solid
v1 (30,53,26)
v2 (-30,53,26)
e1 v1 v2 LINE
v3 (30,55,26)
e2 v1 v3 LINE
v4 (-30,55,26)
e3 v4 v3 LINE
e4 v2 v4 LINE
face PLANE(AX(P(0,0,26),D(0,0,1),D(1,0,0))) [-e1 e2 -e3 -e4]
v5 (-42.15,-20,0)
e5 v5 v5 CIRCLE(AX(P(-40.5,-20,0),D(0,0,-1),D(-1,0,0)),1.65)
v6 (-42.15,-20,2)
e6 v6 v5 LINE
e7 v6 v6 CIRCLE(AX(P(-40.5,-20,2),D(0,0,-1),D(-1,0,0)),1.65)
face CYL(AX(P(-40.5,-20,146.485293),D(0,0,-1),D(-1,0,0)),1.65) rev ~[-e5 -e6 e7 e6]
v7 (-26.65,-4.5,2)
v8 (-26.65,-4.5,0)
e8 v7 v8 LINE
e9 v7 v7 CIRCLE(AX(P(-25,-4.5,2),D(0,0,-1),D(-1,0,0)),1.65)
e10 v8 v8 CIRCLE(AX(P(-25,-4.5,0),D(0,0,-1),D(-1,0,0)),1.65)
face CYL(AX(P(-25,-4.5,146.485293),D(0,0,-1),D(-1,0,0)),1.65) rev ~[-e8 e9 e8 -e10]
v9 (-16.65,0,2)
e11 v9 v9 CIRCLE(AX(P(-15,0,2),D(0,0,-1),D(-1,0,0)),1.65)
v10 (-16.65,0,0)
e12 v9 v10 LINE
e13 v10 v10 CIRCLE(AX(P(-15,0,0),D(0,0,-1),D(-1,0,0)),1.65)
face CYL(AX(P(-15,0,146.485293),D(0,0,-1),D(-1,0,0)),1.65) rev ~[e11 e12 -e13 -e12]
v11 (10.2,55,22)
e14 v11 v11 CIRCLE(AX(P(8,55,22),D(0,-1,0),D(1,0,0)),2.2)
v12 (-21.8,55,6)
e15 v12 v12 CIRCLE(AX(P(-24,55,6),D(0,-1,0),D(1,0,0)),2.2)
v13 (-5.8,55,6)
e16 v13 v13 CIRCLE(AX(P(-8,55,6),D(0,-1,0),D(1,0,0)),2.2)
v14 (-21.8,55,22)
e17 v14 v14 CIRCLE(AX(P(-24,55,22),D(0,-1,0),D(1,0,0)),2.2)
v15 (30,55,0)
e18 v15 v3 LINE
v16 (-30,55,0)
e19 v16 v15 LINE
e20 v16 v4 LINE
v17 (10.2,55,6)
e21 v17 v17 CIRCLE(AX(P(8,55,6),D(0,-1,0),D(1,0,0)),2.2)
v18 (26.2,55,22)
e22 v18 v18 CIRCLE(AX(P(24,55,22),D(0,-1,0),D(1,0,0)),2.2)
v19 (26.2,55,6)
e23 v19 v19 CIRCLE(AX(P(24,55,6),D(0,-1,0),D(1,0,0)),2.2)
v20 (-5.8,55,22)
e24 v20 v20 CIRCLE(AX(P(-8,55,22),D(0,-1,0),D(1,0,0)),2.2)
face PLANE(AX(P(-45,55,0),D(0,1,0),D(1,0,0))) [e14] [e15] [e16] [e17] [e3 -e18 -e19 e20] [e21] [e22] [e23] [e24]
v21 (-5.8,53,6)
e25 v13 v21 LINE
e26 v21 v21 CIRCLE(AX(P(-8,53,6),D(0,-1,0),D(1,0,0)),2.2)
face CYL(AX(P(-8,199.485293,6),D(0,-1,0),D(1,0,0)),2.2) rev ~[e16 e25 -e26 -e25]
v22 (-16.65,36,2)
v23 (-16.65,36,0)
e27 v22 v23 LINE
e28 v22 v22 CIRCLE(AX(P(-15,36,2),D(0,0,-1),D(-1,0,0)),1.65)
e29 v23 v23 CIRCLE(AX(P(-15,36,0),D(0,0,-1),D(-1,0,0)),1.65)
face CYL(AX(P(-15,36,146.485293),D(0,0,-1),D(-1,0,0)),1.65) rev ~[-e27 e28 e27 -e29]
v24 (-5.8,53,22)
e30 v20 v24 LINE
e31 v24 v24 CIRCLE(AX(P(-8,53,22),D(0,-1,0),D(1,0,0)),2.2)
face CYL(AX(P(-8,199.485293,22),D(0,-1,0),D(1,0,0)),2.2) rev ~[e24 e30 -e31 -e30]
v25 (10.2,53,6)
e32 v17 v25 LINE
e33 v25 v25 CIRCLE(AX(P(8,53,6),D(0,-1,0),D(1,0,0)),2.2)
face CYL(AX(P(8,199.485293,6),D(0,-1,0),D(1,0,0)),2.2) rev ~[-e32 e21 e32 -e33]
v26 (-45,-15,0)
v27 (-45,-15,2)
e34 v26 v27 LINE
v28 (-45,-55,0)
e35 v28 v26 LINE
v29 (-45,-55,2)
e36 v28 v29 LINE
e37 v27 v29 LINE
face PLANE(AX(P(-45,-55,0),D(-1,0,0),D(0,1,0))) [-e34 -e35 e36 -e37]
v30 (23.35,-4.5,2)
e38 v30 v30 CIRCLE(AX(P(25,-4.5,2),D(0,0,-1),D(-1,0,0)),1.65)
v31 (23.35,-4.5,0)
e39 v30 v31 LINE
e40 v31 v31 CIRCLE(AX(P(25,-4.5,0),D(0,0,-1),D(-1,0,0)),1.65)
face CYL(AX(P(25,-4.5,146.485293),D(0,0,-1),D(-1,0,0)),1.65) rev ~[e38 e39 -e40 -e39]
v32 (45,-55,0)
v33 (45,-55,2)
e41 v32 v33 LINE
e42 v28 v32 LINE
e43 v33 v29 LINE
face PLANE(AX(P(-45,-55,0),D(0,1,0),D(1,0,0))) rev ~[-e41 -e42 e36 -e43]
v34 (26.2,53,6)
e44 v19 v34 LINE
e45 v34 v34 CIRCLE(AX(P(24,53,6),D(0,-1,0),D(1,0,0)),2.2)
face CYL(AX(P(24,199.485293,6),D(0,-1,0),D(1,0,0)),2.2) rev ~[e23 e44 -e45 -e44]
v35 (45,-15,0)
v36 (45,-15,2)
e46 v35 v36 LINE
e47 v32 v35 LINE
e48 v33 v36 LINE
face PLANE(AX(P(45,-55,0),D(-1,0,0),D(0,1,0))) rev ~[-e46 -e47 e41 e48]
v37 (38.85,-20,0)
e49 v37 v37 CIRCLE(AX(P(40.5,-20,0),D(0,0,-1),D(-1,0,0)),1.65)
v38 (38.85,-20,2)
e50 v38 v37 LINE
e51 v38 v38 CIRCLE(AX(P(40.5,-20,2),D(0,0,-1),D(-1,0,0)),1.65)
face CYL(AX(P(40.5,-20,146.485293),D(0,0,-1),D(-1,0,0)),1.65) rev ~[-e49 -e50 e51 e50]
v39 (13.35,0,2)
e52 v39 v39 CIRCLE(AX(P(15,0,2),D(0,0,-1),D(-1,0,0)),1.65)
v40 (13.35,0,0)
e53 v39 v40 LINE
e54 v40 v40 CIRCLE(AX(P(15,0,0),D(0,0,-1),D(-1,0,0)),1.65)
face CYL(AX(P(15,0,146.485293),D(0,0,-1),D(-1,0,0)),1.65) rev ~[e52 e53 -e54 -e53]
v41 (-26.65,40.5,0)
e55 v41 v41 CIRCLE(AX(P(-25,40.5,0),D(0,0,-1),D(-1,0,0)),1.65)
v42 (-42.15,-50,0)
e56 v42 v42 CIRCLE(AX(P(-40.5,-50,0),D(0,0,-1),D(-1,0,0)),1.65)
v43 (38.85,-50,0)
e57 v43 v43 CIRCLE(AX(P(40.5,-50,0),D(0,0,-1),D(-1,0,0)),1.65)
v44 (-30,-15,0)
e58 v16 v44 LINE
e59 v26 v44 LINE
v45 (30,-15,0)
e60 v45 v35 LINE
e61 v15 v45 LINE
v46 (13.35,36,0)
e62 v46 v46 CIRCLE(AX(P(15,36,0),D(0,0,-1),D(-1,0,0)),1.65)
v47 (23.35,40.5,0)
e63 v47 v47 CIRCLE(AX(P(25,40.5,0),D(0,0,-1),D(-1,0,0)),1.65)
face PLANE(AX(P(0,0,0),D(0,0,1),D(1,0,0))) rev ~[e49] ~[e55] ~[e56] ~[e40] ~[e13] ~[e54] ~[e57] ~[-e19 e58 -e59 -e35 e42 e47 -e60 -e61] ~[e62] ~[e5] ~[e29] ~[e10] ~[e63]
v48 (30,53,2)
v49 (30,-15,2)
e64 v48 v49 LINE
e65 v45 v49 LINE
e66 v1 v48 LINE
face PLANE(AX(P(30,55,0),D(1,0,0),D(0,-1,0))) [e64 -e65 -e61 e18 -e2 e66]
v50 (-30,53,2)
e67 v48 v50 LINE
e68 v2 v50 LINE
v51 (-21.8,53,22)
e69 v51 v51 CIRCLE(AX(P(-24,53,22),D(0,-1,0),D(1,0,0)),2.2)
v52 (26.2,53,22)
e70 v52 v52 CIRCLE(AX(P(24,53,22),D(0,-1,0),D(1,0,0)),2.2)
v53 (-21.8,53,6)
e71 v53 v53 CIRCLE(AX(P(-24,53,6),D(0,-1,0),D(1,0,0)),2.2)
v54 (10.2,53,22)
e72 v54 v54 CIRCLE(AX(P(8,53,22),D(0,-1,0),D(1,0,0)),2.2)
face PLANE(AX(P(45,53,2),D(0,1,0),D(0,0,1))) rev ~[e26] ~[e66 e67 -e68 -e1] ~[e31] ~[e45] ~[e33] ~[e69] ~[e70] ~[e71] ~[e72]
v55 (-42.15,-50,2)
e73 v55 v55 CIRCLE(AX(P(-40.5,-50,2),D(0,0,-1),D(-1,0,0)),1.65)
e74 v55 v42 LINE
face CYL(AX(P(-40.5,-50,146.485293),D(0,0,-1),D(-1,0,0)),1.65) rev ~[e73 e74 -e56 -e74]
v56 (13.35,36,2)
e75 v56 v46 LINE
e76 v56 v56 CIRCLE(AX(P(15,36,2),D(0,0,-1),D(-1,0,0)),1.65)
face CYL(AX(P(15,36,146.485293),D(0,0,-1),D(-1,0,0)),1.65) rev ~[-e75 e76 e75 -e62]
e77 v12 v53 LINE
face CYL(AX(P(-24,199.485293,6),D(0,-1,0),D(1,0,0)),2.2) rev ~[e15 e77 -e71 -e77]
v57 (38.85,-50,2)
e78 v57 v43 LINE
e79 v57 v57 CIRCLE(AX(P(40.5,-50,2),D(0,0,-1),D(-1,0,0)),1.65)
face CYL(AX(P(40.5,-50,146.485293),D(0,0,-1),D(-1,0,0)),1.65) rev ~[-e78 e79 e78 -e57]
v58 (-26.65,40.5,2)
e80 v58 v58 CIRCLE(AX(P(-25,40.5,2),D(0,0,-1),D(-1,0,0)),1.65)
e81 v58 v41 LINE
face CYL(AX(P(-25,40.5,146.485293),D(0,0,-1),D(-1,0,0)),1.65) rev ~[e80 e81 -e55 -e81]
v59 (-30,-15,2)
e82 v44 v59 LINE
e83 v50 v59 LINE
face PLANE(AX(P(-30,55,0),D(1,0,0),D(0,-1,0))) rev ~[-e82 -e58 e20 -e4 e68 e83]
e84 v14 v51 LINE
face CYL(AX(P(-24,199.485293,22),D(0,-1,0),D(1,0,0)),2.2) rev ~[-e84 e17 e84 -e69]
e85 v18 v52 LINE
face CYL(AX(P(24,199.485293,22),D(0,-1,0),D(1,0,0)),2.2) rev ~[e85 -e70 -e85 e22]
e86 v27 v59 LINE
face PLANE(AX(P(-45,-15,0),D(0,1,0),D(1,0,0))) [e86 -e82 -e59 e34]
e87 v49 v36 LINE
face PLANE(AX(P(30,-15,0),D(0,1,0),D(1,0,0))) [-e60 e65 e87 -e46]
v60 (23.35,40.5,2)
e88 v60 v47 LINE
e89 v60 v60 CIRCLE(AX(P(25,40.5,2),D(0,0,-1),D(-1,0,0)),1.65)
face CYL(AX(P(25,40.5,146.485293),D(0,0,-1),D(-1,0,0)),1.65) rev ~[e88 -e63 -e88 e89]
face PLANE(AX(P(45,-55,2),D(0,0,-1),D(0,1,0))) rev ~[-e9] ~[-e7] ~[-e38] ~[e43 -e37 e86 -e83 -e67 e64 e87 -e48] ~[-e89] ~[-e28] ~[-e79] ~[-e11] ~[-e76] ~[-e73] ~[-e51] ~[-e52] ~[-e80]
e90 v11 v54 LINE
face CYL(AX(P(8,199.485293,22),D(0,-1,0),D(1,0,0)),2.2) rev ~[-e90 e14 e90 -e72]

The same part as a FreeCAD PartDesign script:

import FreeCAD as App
import Part
import Sketcher
from FreeCAD import Vector
Q = App.Units.Quantity

doc = App.newDocument("Part")
params = doc.addObject("Spreadsheet::Sheet", "Params")
for row, (alias, value) in enumerate([
    ("sketch1_width", "90 mm"),
    ("sketch1_height", "110 mm"),
    ("pad1_length", "26 mm"),
    ("sketch2_width", "108 mm"),
    ("sketch2_height", "24 mm"),
    ("sketch3_diameter", "4.4 mm"),
    ("hole_diameter", "4.4 mm"),
    ("sketch4_width", "15 mm"),
    ("sketch4_height", "70 mm"),
    ("sketch5_diameter", "3.3 mm"),
    ("hole2_diameter", "3.3 mm"),
], start=1):
    params.set(f"A{row}", alias)
    params.set(f"B{row}", "=" + value)
    params.setAlias(f"B{row}", alias)

body = doc.addObject("PartDesign::Body", "Body")

# Sketch on XY plane
sketch1 = body.newObject("Sketcher::SketchObject", "Sketch")
sketch1.AttachmentSupport = (doc.getObject("XY_Plane"), [""])
sketch1.MapMode = "FlatFace"
sketch1.addGeometry([
    Part.LineSegment(Vector(-45, 55, 0), Vector(-45, -55, 0)),
    Part.LineSegment(Vector(-45, -55, 0), Vector(45, -55, 0)),
    Part.LineSegment(Vector(45, -55, 0), Vector(45, 55, 0)),
    Part.LineSegment(Vector(45, 55, 0), Vector(-45, 55, 0)),
], False)
sketch1.addConstraint([
    Sketcher.Constraint("Coincident", 0, 2, 1, 1),
    Sketcher.Constraint("Coincident", 1, 2, 2, 1),
    Sketcher.Constraint("Coincident", 2, 2, 3, 1),
    Sketcher.Constraint("Coincident", 3, 2, 0, 1),
    Sketcher.Constraint("Vertical", 0),
    Sketcher.Constraint("Horizontal", 1),
    Sketcher.Constraint("Vertical", 2),
    Sketcher.Constraint("Horizontal", 3),
    Sketcher.Constraint("Symmetric", 0, 2, 2, 2, -1, 1),
    Sketcher.Constraint("DistanceX", 1, 1, 1, 2, Q("90 mm")),
    Sketcher.Constraint("DistanceY", 0, 2, 0, 1, Q("110 mm")),
])
sketch1.setExpression("Constraints[9]", "Params.sketch1_width")
sketch1.setExpression("Constraints[10]", "Params.sketch1_height")
pad1 = body.newObject("PartDesign::Pad", "Pad")
pad1.Profile = sketch1
pad1.setExpression("Length", "Params.pad1_length")

# Sketch on YZ plane
sketch2 = body.newObject("Sketcher::SketchObject", "Sketch001")
sketch2.AttachmentSupport = (doc.getObject("YZ_Plane"), [""])
sketch2.MapMode = "FlatFace"
sketch2.AttachmentOffset = App.Placement(Vector(0, 0, 45), App.Rotation())
sketch2.addGeometry([
    Part.LineSegment(Vector(-55, 26, 0), Vector(-55, 2, 0)),
    Part.LineSegment(Vector(-55, 2, 0), Vector(53, 2, 0)),
    Part.LineSegment(Vector(53, 2, 0), Vector(53, 26, 0)),
    Part.LineSegment(Vector(53, 26, 0), Vector(-55, 26, 0)),
], False)
sketch2.addConstraint([
    Sketcher.Constraint("Coincident", 0, 2, 1, 1),
    Sketcher.Constraint("Coincident", 1, 2, 2, 1),
    Sketcher.Constraint("Coincident", 2, 2, 3, 1),
    Sketcher.Constraint("Coincident", 3, 2, 0, 1),
    Sketcher.Constraint("Vertical", 0),
    Sketcher.Constraint("Horizontal", 1),
    Sketcher.Constraint("Vertical", 2),
    Sketcher.Constraint("Horizontal", 3),
    Sketcher.Constraint("DistanceX", 1, 1, 1, 2, Q("108 mm")),
    Sketcher.Constraint("DistanceY", 0, 2, 0, 1, Q("24 mm")),
    Sketcher.Constraint("DistanceX", 0, 2, -1, 1, Q("55 mm")),
    Sketcher.Constraint("DistanceY", -1, 1, 0, 2, Q("2 mm")),
])
sketch2.setExpression("Constraints[8]", "Params.sketch2_width")
sketch2.setExpression("Constraints[9]", "Params.sketch2_height")
pocket1 = body.newObject("PartDesign::Pocket", "Pocket")
pocket1.Profile = sketch2
pocket1.Type = "ThroughAll"

# Sketch on XZ plane
sketch3 = body.newObject("Sketcher::SketchObject", "Sketch002")
sketch3.AttachmentSupport = (doc.getObject("XZ_Plane"), [""])
sketch3.MapMode = "FlatFace"
sketch3.AttachmentOffset = App.Placement(Vector(0, 0, -55), App.Rotation())
sketch3.addGeometry([
    Part.Circle(Vector(8, 22, 0), Vector(0, 0, 1), 2.2),  # 0
    Part.Circle(Vector(-8, 22, 0), Vector(0, 0, 1), 2.2),  # 1
    Part.Circle(Vector(-8, 6, 0), Vector(0, 0, 1), 2.2),  # 2
    Part.Circle(Vector(8, 6, 0), Vector(0, 0, 1), 2.2),  # 3
    Part.Circle(Vector(24, 22, 0), Vector(0, 0, 1), 2.2),  # 4
    Part.Circle(Vector(-24, 22, 0), Vector(0, 0, 1), 2.2),  # 5
    Part.Circle(Vector(-24, 6, 0), Vector(0, 0, 1), 2.2),  # 6
    Part.Circle(Vector(24, 6, 0), Vector(0, 0, 1), 2.2),  # 7
], False)
sketch3.addConstraint([
    Sketcher.Constraint("Equal", 0, 1),
    Sketcher.Constraint("Equal", 1, 2),
    Sketcher.Constraint("Equal", 2, 3),
    Sketcher.Constraint("Equal", 3, 4),
    Sketcher.Constraint("Equal", 4, 5),
    Sketcher.Constraint("Equal", 5, 6),
    Sketcher.Constraint("Equal", 6, 7),
    Sketcher.Constraint("Symmetric", 0, 3, 1, 3, -2),
    Sketcher.Constraint("Symmetric", 2, 3, 3, 3, -2),
    Sketcher.Constraint("Symmetric", 4, 3, 5, 3, -2),
    Sketcher.Constraint("Symmetric", 6, 3, 7, 3, -2),
    Sketcher.Constraint("Horizontal", 1, 3, 4, 3),
    Sketcher.Constraint("Horizontal", 3, 3, 6, 3),
    Sketcher.Constraint("Vertical", 1, 3, 2, 3),
    Sketcher.Constraint("Vertical", 5, 3, 6, 3),
    Sketcher.Constraint("Diameter", 0, Q("4.4 mm")),
    Sketcher.Constraint("DistanceX", -1, 1, 0, 3, Q("8 mm")),
    Sketcher.Constraint("DistanceY", -1, 1, 0, 3, Q("22 mm")),
    Sketcher.Constraint("DistanceY", -1, 1, 2, 3, Q("6 mm")),
    Sketcher.Constraint("DistanceX", -1, 1, 4, 3, Q("24 mm")),
])
sketch3.setExpression("Constraints[15]", "Params.sketch3_diameter")
doc.recompute()
hole = body.newObject("PartDesign::Hole", "Hole")
hole.Profile = sketch3
hole.ThreadType = "None"
hole.setExpression("Diameter", "Params.hole_diameter")
hole.DepthType = "ThroughAll"
hole.Reversed = True

# Sketch on XY plane
sketch4 = body.newObject("Sketcher::SketchObject", "Sketch003")
sketch4.AttachmentSupport = (doc.getObject("XY_Plane"), [""])
sketch4.MapMode = "FlatFace"
sketch4.addGeometry([
    Part.LineSegment(Vector(-45, -15, 0), Vector(-45, 55, 0)),  # 0
    Part.LineSegment(Vector(-45, 55, 0), Vector(-30, 55, 0)),  # 1
    Part.LineSegment(Vector(-30, 55, 0), Vector(-30, -15, 0)),  # 2
    Part.LineSegment(Vector(-30, -15, 0), Vector(-45, -15, 0)),  # 3
    Part.LineSegment(Vector(30, -15, 0), Vector(30, 55, 0)),  # 4
    Part.LineSegment(Vector(30, 55, 0), Vector(45, 55, 0)),  # 5
    Part.LineSegment(Vector(45, 55, 0), Vector(45, -15, 0)),  # 6
    Part.LineSegment(Vector(45, -15, 0), Vector(30, -15, 0)),  # 7
], False)
sketch4.addConstraint([
    Sketcher.Constraint("Coincident", 0, 2, 1, 1),
    Sketcher.Constraint("Coincident", 1, 2, 2, 1),
    Sketcher.Constraint("Coincident", 2, 2, 3, 1),
    Sketcher.Constraint("Coincident", 3, 2, 0, 1),
    Sketcher.Constraint("Coincident", 4, 2, 5, 1),
    Sketcher.Constraint("Coincident", 5, 2, 6, 1),
    Sketcher.Constraint("Coincident", 6, 2, 7, 1),
    Sketcher.Constraint("Coincident", 7, 2, 4, 1),
    Sketcher.Constraint("Vertical", 0),
    Sketcher.Constraint("Horizontal", 1),
    Sketcher.Constraint("Vertical", 2),
    Sketcher.Constraint("Horizontal", 3),
    Sketcher.Constraint("Vertical", 4),
    Sketcher.Constraint("Horizontal", 5),
    Sketcher.Constraint("Vertical", 6),
    Sketcher.Constraint("Horizontal", 7),
    Sketcher.Constraint("Symmetric", 1, 2, 4, 2, -2),
    Sketcher.Constraint("Symmetric", 3, 2, 6, 2, -2),
    Sketcher.Constraint("DistanceX", 1, 1, 1, 2, Q("15 mm")),
    Sketcher.Constraint("DistanceY", 0, 1, 0, 2, Q("70 mm")),
    Sketcher.Constraint("DistanceX", 0, 2, -1, 1, Q("45 mm")),
    Sketcher.Constraint("DistanceY", -1, 1, 0, 2, Q("55 mm")),
])
sketch4.setExpression("Constraints[18]", "Params.sketch4_width")
sketch4.setExpression("Constraints[19]", "Params.sketch4_height")
pocket2 = body.newObject("PartDesign::Pocket", "Pocket001")
pocket2.Profile = sketch4
pocket2.Type = "ThroughAll"
pocket2.Reversed = True

# Sketch on XY plane
sketch5 = body.newObject("Sketcher::SketchObject", "Sketch004")
sketch5.AttachmentSupport = (doc.getObject("XY_Plane"), [""])
sketch5.MapMode = "FlatFace"
sketch5.AttachmentOffset = App.Placement(Vector(0, 0, 2), App.Rotation())
sketch5.addGeometry([
    Part.Circle(Vector(25, 40.5, 0), Vector(0, 0, 1), 1.6),  # 0
    Part.Circle(Vector(15, 36, 0), Vector(0, 0, 1), 1.6),  # 1
    Part.Circle(Vector(-15, 36, 0), Vector(0, 0, 1), 1.6),  # 2
    Part.Circle(Vector(-25, 40.5, 0), Vector(0, 0, 1), 1.6),  # 3
    Part.Circle(Vector(-25, -4.5, 0), Vector(0, 0, 1), 1.6),  # 4
    Part.Circle(Vector(-15, 0, 0), Vector(0, 0, 1), 1.6),  # 5
    Part.Circle(Vector(15, 0, 0), Vector(0, 0, 1), 1.6),  # 6
    Part.Circle(Vector(25, -4.5, 0), Vector(0, 0, 1), 1.6),  # 7
    Part.Circle(Vector(40.5, -20, 0), Vector(0, 0, 1), 1.6),  # 8
    Part.Circle(Vector(40.5, -50, 0), Vector(0, 0, 1), 1.6),  # 9
    Part.Circle(Vector(-40.5, -50, 0), Vector(0, 0, 1), 1.6),  # 10
    Part.Circle(Vector(-40.5, -20, 0), Vector(0, 0, 1), 1.6),  # 11
], False)
sketch5.addConstraint([
    Sketcher.Constraint("Equal", 0, 1),
    Sketcher.Constraint("Equal", 1, 2),
    Sketcher.Constraint("Equal", 2, 3),
    Sketcher.Constraint("Equal", 3, 4),
    Sketcher.Constraint("Equal", 4, 5),
    Sketcher.Constraint("Equal", 5, 6),
    Sketcher.Constraint("Equal", 6, 7),
    Sketcher.Constraint("Equal", 7, 8),
    Sketcher.Constraint("Equal", 8, 9),
    Sketcher.Constraint("Equal", 9, 10),
    Sketcher.Constraint("Equal", 10, 11),
    Sketcher.Constraint("Symmetric", 5, 3, 6, 3, -1, 1),
    Sketcher.Constraint("Symmetric", 1, 3, 2, 3, -2),
    Sketcher.Constraint("Symmetric", 0, 3, 3, 3, -2),
    Sketcher.Constraint("Symmetric", 4, 3, 7, 3, -2),
    Sketcher.Constraint("Symmetric", 9, 3, 10, 3, -2),
    Sketcher.Constraint("Symmetric", 8, 3, 11, 3, -2),
    Sketcher.Constraint("PointOnObject", 5, 3, -1),
    Sketcher.Constraint("Vertical", 3, 3, 4, 3),
    Sketcher.Constraint("Vertical", 2, 3, 5, 3),
    Sketcher.Constraint("Vertical", 8, 3, 9, 3),
    Sketcher.Constraint("Diameter", 0, Q("3.3 mm")),
    Sketcher.Constraint("DistanceX", -1, 1, 0, 3, Q("25 mm")),
    Sketcher.Constraint("DistanceX", -1, 1, 1, 3, Q("15 mm")),
    Sketcher.Constraint("DistanceY", -1, 1, 1, 3, Q("36 mm")),
    Sketcher.Constraint("DistanceY", 8, 3, -1, 1, Q("20 mm")),
    Sketcher.Constraint("DistanceY", 9, 3, -1, 1, Q("50 mm")),
    Sketcher.Constraint("DistanceY", 4, 3, 3, 3, Q("45 mm")),
    Sketcher.Constraint("DistanceX", 10, 3, 9, 3, Q("81 mm")),
    Sketcher.Constraint("DistanceY", -1, 1, 0, 3, Q("40.5 mm")),
])
sketch5.setExpression("Constraints[21]", "Params.sketch5_diameter")
doc.recompute()
hole2 = body.newObject("PartDesign::Hole", "Hole001")
hole2.Profile = sketch5
hole2.ThreadType = "None"
hole2.setExpression("Diameter", "Params.hole2_diameter")
hole2.DepthType = "ThroughAll"

doc.recompute()
